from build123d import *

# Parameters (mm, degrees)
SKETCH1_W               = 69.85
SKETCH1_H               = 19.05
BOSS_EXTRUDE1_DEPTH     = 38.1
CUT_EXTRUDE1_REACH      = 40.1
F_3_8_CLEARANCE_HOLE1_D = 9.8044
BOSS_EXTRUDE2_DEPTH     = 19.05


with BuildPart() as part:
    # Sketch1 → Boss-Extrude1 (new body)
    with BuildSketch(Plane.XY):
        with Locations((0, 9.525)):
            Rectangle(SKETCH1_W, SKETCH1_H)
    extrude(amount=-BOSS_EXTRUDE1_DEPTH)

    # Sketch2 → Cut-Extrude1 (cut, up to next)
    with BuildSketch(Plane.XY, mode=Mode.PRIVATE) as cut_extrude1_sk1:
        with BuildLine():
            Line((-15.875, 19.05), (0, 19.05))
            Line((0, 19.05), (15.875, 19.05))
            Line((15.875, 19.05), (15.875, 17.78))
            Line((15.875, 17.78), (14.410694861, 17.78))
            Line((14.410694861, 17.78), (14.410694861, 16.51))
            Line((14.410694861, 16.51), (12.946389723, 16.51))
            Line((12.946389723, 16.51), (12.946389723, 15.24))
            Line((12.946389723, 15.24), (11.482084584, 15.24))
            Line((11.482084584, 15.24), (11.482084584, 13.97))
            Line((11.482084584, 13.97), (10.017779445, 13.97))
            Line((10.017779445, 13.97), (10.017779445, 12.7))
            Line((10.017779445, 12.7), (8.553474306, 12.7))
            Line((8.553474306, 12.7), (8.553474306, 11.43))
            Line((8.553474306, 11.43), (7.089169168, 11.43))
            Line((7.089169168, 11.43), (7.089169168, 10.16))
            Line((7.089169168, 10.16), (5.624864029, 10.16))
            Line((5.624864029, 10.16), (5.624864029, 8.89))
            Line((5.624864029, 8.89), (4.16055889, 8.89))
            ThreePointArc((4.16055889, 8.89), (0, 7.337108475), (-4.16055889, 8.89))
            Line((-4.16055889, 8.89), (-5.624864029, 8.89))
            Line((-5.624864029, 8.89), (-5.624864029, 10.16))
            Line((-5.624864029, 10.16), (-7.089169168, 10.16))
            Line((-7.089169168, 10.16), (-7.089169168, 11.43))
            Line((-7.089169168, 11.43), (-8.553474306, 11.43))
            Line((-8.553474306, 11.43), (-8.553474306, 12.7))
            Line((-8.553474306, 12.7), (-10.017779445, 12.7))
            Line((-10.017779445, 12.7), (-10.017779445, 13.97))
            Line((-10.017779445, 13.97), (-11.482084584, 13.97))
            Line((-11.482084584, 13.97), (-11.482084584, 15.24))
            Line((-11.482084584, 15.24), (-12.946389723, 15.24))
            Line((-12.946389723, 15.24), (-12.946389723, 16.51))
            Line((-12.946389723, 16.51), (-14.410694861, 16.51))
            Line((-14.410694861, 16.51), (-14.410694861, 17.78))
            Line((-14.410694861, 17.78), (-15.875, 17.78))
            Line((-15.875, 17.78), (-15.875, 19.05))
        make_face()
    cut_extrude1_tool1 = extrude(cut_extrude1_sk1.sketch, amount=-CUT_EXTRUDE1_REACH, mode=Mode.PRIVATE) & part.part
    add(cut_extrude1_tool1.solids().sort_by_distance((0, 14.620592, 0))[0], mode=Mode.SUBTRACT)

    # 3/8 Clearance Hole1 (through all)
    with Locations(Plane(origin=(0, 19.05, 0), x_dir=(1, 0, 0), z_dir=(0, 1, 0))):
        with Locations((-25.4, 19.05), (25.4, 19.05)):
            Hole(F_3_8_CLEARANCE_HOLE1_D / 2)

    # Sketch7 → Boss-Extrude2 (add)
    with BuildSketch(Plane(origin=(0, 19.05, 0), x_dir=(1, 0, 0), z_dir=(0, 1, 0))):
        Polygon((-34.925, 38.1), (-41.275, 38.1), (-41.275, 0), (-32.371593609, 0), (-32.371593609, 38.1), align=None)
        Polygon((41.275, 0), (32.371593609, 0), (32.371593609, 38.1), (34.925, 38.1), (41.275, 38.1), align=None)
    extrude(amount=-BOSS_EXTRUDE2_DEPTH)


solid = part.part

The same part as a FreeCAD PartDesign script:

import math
import FreeCAD as App
import Part
import Sketcher
from FreeCAD import Vector
Q = App.Units.Quantity


def add_polygon(sketch, points):
    """Adds a closed chain of lines whose ends are joined by coincident constraints."""
    first, n = sketch.GeometryCount, len(points)
    for a, b in zip(points, points[1:] + points[:1]):
        sketch.addGeometry(Part.LineSegment(App.Vector(*a, 0), App.Vector(*b, 0)), False)
    for i in range(n):
        sketch.addConstraint(Sketcher.Constraint("Coincident", first + i, 2, first + (i + 1) % n, 1))

doc = App.newDocument("Part")
params = doc.addObject("Spreadsheet::Sheet", "Params")
for row, (alias, value) in enumerate([
    ("sketch1_width", "2.75 in"),
    ("sketch1_height", "0.75 in"),
    ("pad1_length", "1.5 in"),
    ("sketch2_radius", "0.25 in"),
    ("sketch2_width", "1.25 in"),
    ("sketch2_height", "0.05 in"),
    ("sketch3_diameter", "0.386 in"),
    ("hole_diameter", "0.386 in"),
    ("sketch4_height", "1.5 in"),
    ("pad2_length", "0.75 in"),
], start=1):
    params.set(f"A{row}", alias)
    params.set(f"B{row}", "=" + value)
    params.setAlias(f"B{row}", alias)

body = doc.addObject("PartDesign::Body", "Body")

sketch1 = body.newObject("Sketcher::SketchObject", "Sketch")
sketch1.AttachmentSupport = (doc.getObject("XY_Plane"), [""])
sketch1.MapMode = "FlatFace"
add_polygon(sketch1, [(-35, 19), (-35, 0), (35, 0), (35, 19)])
sketch1.addConstraint(Sketcher.Constraint("Vertical", 0))
sketch1.addConstraint(Sketcher.Constraint("Horizontal", 1))
sketch1.addConstraint(Sketcher.Constraint("Vertical", 2))
sketch1.addConstraint(Sketcher.Constraint("Horizontal", 3))
sketch1.addConstraint(Sketcher.Constraint("Symmetric", 0, 2, 1, 2, -1, 1))
sketch1.addConstraint(Sketcher.Constraint("DistanceX", 1, 1, 1, 2, Q("2.75 in")))
sketch1.addConstraint(Sketcher.Constraint("DistanceY", 0, 2, 0, 1, Q("0.75 in")))
sketch1.setExpression("Constraints[9]", "Params.sketch1_width")
sketch1.setExpression("Constraints[10]", "Params.sketch1_height")
pad1 = body.newObject("PartDesign::Pad", "Pad")
pad1.Profile = sketch1
pad1.setExpression("Length", "Params.pad1_length")
pad1.Reversed = True

sketch2 = body.newObject("Sketcher::SketchObject", "Sketch001")
sketch2.AttachmentSupport = (doc.getObject("XY_Plane"), [""])
sketch2.MapMode = "FlatFace"
sketch2.addGeometry(Part.LineSegment(Vector(15.9, 19.1, 0), Vector(-15.9, 19.1, 0)), False)
sketch2.addGeometry(Part.LineSegment(Vector(-15.9, 19.1, 0), Vector(-15.9, 17.8, 0)), False)
sketch2.addGeometry(Part.LineSegment(Vector(-15.9, 17.8, 0), Vector(-14.4, 17.8, 0)), False)
sketch2.addGeometry(Part.LineSegment(Vector(-14.4, 17.8, 0), Vector(-14.4, 16.5, 0)), False)
sketch2.addGeometry(Part.LineSegment(Vector(-14.4, 16.5, 0), Vector(-12.9, 16.5, 0)), False)
sketch2.addGeometry(Part.LineSegment(Vector(-12.9, 16.5, 0), Vector(-12.9, 15.2, 0)), False)
sketch2.addGeometry(Part.LineSegment(Vector(-12.9, 15.2, 0), Vector(-11.5, 15.2, 0)), False)
sketch2.addGeometry(Part.LineSegment(Vector(-11.5, 15.2, 0), Vector(-11.5, 14, 0)), False)
sketch2.addGeometry(Part.LineSegment(Vector(-11.5, 14, 0), Vector(-10, 14, 0)), False)
sketch2.addGeometry(Part.LineSegment(Vector(-10, 14, 0), Vector(-10, 12.7, 0)), False)
sketch2.addGeometry(Part.LineSegment(Vector(-10, 12.7, 0), Vector(-8.6, 12.7, 0)), False)
sketch2.addGeometry(Part.LineSegment(Vector(-8.6, 12.7, 0), Vector(-8.6, 11.4, 0)), False)
sketch2.addGeometry(Part.LineSegment(Vector(-8.6, 11.4, 0), Vector(-7.1, 11.4, 0)), False)
sketch2.addGeometry(Part.LineSegment(Vector(-7.1, 11.4, 0), Vector(-7.1, 10.2, 0)), False)
sketch2.addGeometry(Part.LineSegment(Vector(-7.1, 10.2, 0), Vector(-5.6, 10.2, 0)), False)
sketch2.addGeometry(Part.LineSegment(Vector(-5.6, 10.2, 0), Vector(-5.6, 8.9, 0)), False)
sketch2.addGeometry(Part.LineSegment(Vector(-5.6, 8.9, 0), Vector(-4.2, 8.9, 0)), False)
sketch2.addGeometry(Part.ArcOfCircle(Part.Circle(Vector(0, 13.7, 0), Vector(0, 0, 1), 6.3), math.radians(-131), math.radians(-49)), False)
sketch2.addGeometry(Part.LineSegment(Vector(4.2, 8.9, 0), Vector(5.6, 8.9, 0)), False)
sketch2.addGeometry(Part.LineSegment(Vector(5.6, 8.9, 0), Vector(5.6, 10.2, 0)), False)
sketch2.addGeometry(Part.LineSegment(Vector(5.6, 10.2, 0), Vector(7.1, 10.2, 0)), False)
sketch2.addGeometry(Part.LineSegment(Vector(7.1, 10.2, 0), Vector(7.1, 11.4, 0)), False)
sketch2.addGeometry(Part.LineSegment(Vector(7.1, 11.4, 0), Vector(8.6, 11.4, 0)), False)
sketch2.addGeometry(Part.LineSegment(Vector(8.6, 11.4, 0), Vector(8.6, 12.7, 0)), False)
sketch2.addGeometry(Part.LineSegment(Vector(8.6, 12.7, 0), Vector(10, 12.7, 0)), False)
sketch2.addGeometry(Part.LineSegment(Vector(10, 12.7, 0), Vector(10, 14, 0)), False)
sketch2.addGeometry(Part.LineSegment(Vector(10, 14, 0), Vector(11.5, 14, 0)), False)
sketch2.addGeometry(Part.LineSegment(Vector(11.5, 14, 0), Vector(11.5, 15.2, 0)), False)
sketch2.addGeometry(Part.LineSegment(Vector(11.5, 15.2, 0), Vector(12.9, 15.2, 0)), False)
sketch2.addGeometry(Part.LineSegment(Vector(12.9, 15.2, 0), Vector(12.9, 16.5, 0)), False)
sketch2.addGeometry(Part.LineSegment(Vector(12.9, 16.5, 0), Vector(14.4, 16.5, 0)), False)
sketch2.addGeometry(Part.LineSegment(Vector(14.4, 16.5, 0), Vector(14.4, 17.8, 0)), False)
sketch2.addGeometry(Part.LineSegment(Vector(14.4, 17.8, 0), Vector(15.9, 17.8, 0)), False)
sketch2.addGeometry(Part.LineSegment(Vector(15.9, 17.8, 0), Vector(15.9, 19.1, 0)), False)
sketch2.addConstraint(Sketcher.Constraint("Coincident", 0, 2, 1, 1))
sketch2.addConstraint(Sketcher.Constraint("Coincident", 1, 2, 2, 1))
sketch2.addConstraint(Sketcher.Constraint("Coincident", 2, 2, 3, 1))
sketch2.addConstraint(Sketcher.Constraint("Coincident", 3, 2, 4, 1))
sketch2.addConstraint(Sketcher.Constraint("Coincident", 4, 2, 5, 1))
sketch2.addConstraint(Sketcher.Constraint("Coincident", 5, 2, 6, 1))
sketch2.addConstraint(Sketcher.Constraint("Coincident", 6, 2, 7, 1))
sketch2.addConstraint(Sketcher.Constraint("Coincident", 7, 2, 8, 1))
sketch2.addConstraint(Sketcher.Constraint("Coincident", 8, 2, 9, 1))
sketch2.addConstraint(Sketcher.Constraint("Coincident", 9, 2, 10, 1))
sketch2.addConstraint(Sketcher.Constraint("Coincident", 10, 2, 11, 1))
sketch2.addConstraint(Sketcher.Constraint("Coincident", 11, 2, 12, 1))
sketch2.addConstraint(Sketcher.Constraint("Coincident", 12, 2, 13, 1))
sketch2.addConstraint(Sketcher.Constraint("Coincident", 13, 2, 14, 1))
sketch2.addConstraint(Sketcher.Constraint("Coincident", 14, 2, 15, 1))
sketch2.addConstraint(Sketcher.Constraint("Coincident", 15, 2, 16, 1))
sketch2.addConstraint(Sketcher.Constraint("Coincident", 16, 2, 17, 1))
sketch2.addConstraint(Sketcher.Constraint("Coincident", 17, 2, 18, 1))
sketch2.addConstraint(Sketcher.Constraint("Coincident", 18, 2, 19, 1))
sketch2.addConstraint(Sketcher.Constraint("Coincident", 19, 2, 20, 1))
sketch2.addConstraint(Sketcher.Constraint("Coincident", 20, 2, 21, 1))
sketch2.addConstraint(Sketcher.Constraint("Coincident", 21, 2, 22, 1))
sketch2.addConstraint(Sketcher.Constraint("Coincident", 22, 2, 23, 1))
sketch2.addConstraint(Sketcher.Constraint("Coincident", 23, 2, 24, 1))
sketch2.addConstraint(Sketcher.Constraint("Coincident", 24, 2, 25, 1))
sketch2.addConstraint(Sketcher.Constraint("Coincident", 25, 2, 26, 1))
sketch2.addConstraint(Sketcher.Constraint("Coincident", 26, 2, 27, 1))
sketch2.addConstraint(Sketcher.Constraint("Coincident", 27, 2, 28, 1))
sketch2.addConstraint(Sketcher.Constraint("Coincident", 28, 2, 29, 1))
sketch2.addConstraint(Sketcher.Constraint("Coincident", 29, 2, 30, 1))
sketch2.addConstraint(Sketcher.Constraint("Coincident", 30, 2, 31, 1))
sketch2.addConstraint(Sketcher.Constraint("Coincident", 31, 2, 32, 1))
sketch2.addConstraint(Sketcher.Constraint("Coincident", 32, 2, 33, 1))
sketch2.addConstraint(Sketcher.Constraint("Coincident", 33, 2, 0, 1))
sketch2.addConstraint(Sketcher.Constraint("Horizontal", 0))
sketch2.addConstraint(Sketcher.Constraint("Vertical", 1))
sketch2.addConstraint(Sketcher.Constraint("Horizontal", 2))
sketch2.addConstraint(Sketcher.Constraint("Vertical", 3))
sketch2.addConstraint(Sketcher.Constraint("Horizontal", 4))
sketch2.addConstraint(Sketcher.Constraint("Vertical", 5))
sketch2.addConstraint(Sketcher.Constraint("Horizontal", 6))
sketch2.addConstraint(Sketcher.Constraint("Vertical", 7))
sketch2.addConstraint(Sketcher.Constraint("Horizontal", 8))
sketch2.addConstraint(Sketcher.Constraint("Vertical", 9))
sketch2.addConstraint(Sketcher.Constraint("Horizontal", 10))
sketch2.addConstraint(Sketcher.Constraint("Vertical", 11))
sketch2.addConstraint(Sketcher.Constraint("Horizontal", 12))
sketch2.addConstraint(Sketcher.Constraint("Vertical", 13))
sketch2.addConstraint(Sketcher.Constraint("Horizontal", 14))
sketch2.addConstraint(Sketcher.Constraint("Vertical", 15))
sketch2.addConstraint(Sketcher.Constraint("Horizontal", 16))
sketch2.addConstraint(Sketcher.Constraint("Horizontal", 18))
sketch2.addConstraint(Sketcher.Constraint("Vertical", 19))
sketch2.addConstraint(Sketcher.Constraint("Horizontal", 20))
sketch2.addConstraint(Sketcher.Constraint("Vertical", 21))
sketch2.addConstraint(Sketcher.Constraint("Horizontal", 22))
sketch2.addConstraint(Sketcher.Constraint("Vertical", 23))
sketch2.addConstraint(Sketcher.Constraint("Horizontal", 24))
sketch2.addConstraint(Sketcher.Constraint("Vertical", 25))
sketch2.addConstraint(Sketcher.Constraint("Horizontal", 26))
sketch2.addConstraint(Sketcher.Constraint("Vertical", 27))
sketch2.addConstraint(Sketcher.Constraint("Horizontal", 28))
sketch2.addConstraint(Sketcher.Constraint("Vertical", 29))
sketch2.addConstraint(Sketcher.Constraint("Horizontal", 30))
sketch2.addConstraint(Sketcher.Constraint("Vertical", 31))
sketch2.addConstraint(Sketcher.Constraint("Horizontal", 32))
sketch2.addConstraint(Sketcher.Constraint("Vertical", 33))
sketch2.addConstraint(Sketcher.Constraint("Symmetric", 16, 2, 17, 2, -2))
sketch2.addConstraint(Sketcher.Constraint("Symmetric", 14, 2, 19, 2, -2))
sketch2.addConstraint(Sketcher.Constraint("Symmetric", 12, 2, 21, 2, -2))
sketch2.addConstraint(Sketcher.Constraint("Symmetric", 10, 2, 23, 2, -2))
sketch2.addConstraint(Sketcher.Constraint("Symmetric", 8, 2, 25, 2, -2))
sketch2.addConstraint(Sketcher.Constraint("Symmetric", 6, 2, 27, 2, -2))
sketch2.addConstraint(Sketcher.Constraint("Symmetric", 4, 2, 29, 2, -2))
sketch2.addConstraint(Sketcher.Constraint("Symmetric", 2, 2, 31, 2, -2))
sketch2.addConstraint(Sketcher.Constraint("Equal", 2, 4))
sketch2.addConstraint(Sketcher.Constraint("Equal", 4, 6))
sketch2.addConstraint(Sketcher.Constraint("Equal", 6, 8))
sketch2.addConstraint(Sketcher.Constraint("Equal", 8, 10))
sketch2.addConstraint(Sketcher.Constraint("Equal", 10, 12))
sketch2.addConstraint(Sketcher.Constraint("Equal", 12, 14))
sketch2.addConstraint(Sketcher.Constraint("Equal", 14, 16))
sketch2.addConstraint(Sketcher.Constraint("Equal", 30, 32))
sketch2.addConstraint(Sketcher.Constraint("Equal", 1, 3))
sketch2.addConstraint(Sketcher.Constraint("Equal", 3, 5))
sketch2.addConstraint(Sketcher.Constraint("Equal", 5, 7))
sketch2.addConstraint(Sketcher.Constraint("Equal", 7, 9))
sketch2.addConstraint(Sketcher.Constraint("Equal", 9, 11))
sketch2.addConstraint(Sketcher.Constraint("Equal", 11, 13))
sketch2.addConstraint(Sketcher.Constraint("Equal", 13, 15))
sketch2.addConstraint(Sketcher.Constraint("Radius", 17, Q("0.25 in")))
sketch2.addConstraint(Sketcher.Constraint("DistanceX", 0, 2, 0, 1, Q("1.25 in")))
sketch2.addConstraint(Sketcher.Constraint("DistanceY", 1, 2, 1, 1, Q("0.05 in")))
sketch2.addConstraint(Sketcher.Constraint("DistanceY", -1, 1, 1, 2, Q("0.7 in")))
sketch2.addConstraint(Sketcher.Constraint("DistanceX", 2, 1, 2, 2, Q("1.464305 mm")))
sketch2.setExpression("Constraints[90]", "Params.sketch2_radius")
sketch2.setExpression("Constraints[91]", "Params.sketch2_width")
sketch2.setExpression("Constraints[92]", "Params.sketch2_height")
pocket1 = body.newObject("PartDesign::Pocket", "Pocket")
pocket1.Profile = sketch2
pocket1.Type = "UpToFirst"

sketch3 = body.newObject("Sketcher::SketchObject", "Sketch002")
sketch3.AttachmentSupport = (doc.getObject("XZ_Plane"), [""])
sketch3.MapMode = "FlatFace"
sketch3.AttachmentOffset = App.Placement(Vector(0, 0, -0.75 * 25.4), App.Rotation())
sketch3.addGeometry(Part.Circle(Vector(-25.4, -19.1, 0), Vector(0, 0, 1), 4.9), False)
sketch3.addGeometry(Part.Circle(Vector(25.4, -19.1, 0), Vector(0, 0, 1), 4.9), False)
sketch3.addConstraint(Sketcher.Constraint("Equal", 0, 1))
sketch3.addConstraint(Sketcher.Constraint("Symmetric", 0, 3, 1, 3, -2))
sketch3.addConstraint(Sketcher.Constraint("Diameter", 0, Q("0.386 in")))
sketch3.addConstraint(Sketcher.Constraint("DistanceX", 0, 3, -1, 1, Q("1 in")))
sketch3.addConstraint(Sketcher.Constraint("DistanceY", 0, 3, -1, 1, Q("0.75 in")))
sketch3.setExpression("Constraints[2]", "Params.sketch3_diameter")
doc.recompute()
hole = body.newObject("PartDesign::Hole", "Hole")
hole.Profile = sketch3
hole.ThreadType = "None"
hole.setExpression("Diameter", "Params.hole_diameter")
hole.DepthType = "ThroughAll"
hole.Reversed = True

sketch4 = body.newObject("Sketcher::SketchObject", "Sketch003")
sketch4.AttachmentSupport = (doc.getObject("XZ_Plane"), [""])
sketch4.MapMode = "FlatFace"
sketch4.AttachmentOffset = App.Placement(Vector(0, 0, -0.75 * 25.4), App.Rotation())
add_polygon(sketch4, [(-41, -38), (-41, 0), (-32, 0), (-32, -38)])
add_polygon(sketch4, [(32, 0), (41, 0), (41, -38), (32, -38)])
sketch4.addConstraint(Sketcher.Constraint("Vertical", 0))
sketch4.addConstraint(Sketcher.Constraint("Horizontal", 1))
sketch4.addConstraint(Sketcher.Constraint("Vertical", 2))
sketch4.addConstraint(Sketcher.Constraint("Horizontal", 3))
sketch4.addConstraint(Sketcher.Constraint("Horizontal", 4))
sketch4.addConstraint(Sketcher.Constraint("Vertical", 5))
sketch4.addConstraint(Sketcher.Constraint("Horizontal", 6))
sketch4.addConstraint(Sketcher.Constraint("Vertical", 7))
sketch4.addConstraint(Sketcher.Constraint("Symmetric", 0, 2, 4, 2, -1, 1))
sketch4.addConstraint(Sketcher.Constraint("Symmetric", 2, 2, 6, 2, -2))
sketch4.addConstraint(Sketcher.Constraint("PointOnObject", 0, 2, -1))
sketch4.addConstraint(Sketcher.Constraint("DistanceY", 0, 1, 0, 2, Q("1.5 in")))
sketch4.addConstraint(Sketcher.Constraint("DistanceX", 0, 2, 4, 2, Q("3.25 in")))
sketch4.addConstraint(Sketcher.Constraint("DistanceX", 1, 1, 1, 2, Q("8.903406 mm")))
sketch4.setExpression("Constraints[19]", "Params.sketch4_height")
pad2 = body.newObject("PartDesign::Pad", "Pad001")
pad2.Profile = sketch4
pad2.setExpression("Length", "Params.pad2_length")

doc.recompute()
